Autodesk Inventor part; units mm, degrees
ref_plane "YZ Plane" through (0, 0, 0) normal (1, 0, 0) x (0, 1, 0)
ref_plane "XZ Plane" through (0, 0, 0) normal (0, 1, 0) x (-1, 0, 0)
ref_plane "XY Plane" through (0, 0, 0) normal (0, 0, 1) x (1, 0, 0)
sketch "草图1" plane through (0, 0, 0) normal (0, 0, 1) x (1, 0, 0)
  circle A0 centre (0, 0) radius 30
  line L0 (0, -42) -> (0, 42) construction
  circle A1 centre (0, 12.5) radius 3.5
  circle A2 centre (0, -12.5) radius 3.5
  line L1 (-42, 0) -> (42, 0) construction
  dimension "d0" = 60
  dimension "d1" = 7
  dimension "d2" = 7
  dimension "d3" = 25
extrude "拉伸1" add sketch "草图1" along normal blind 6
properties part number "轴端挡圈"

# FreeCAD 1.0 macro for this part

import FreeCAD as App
import Part
import Sketcher

doc = App.newDocument("Part")
body = doc.addObject("PartDesign::Body", "Body")

# Sketch on XY plane
sketch1 = body.newObject("Sketcher::SketchObject", "Sketch")
sketch1.AttachmentSupport = (doc.getObject("XY_Plane"), [""])
sketch1.MapMode = "FlatFace"
sketch1.addGeometry(Part.Circle(App.Vector(0, 0, 0), App.Vector(0, 0, 1), 30), False)
sketch1.addGeometry(Part.Circle(App.Vector(0, -12.5, 0), App.Vector(0, 0, 1), 3.5), False)
sketch1.addGeometry(Part.Circle(App.Vector(0, 12.5, 0), App.Vector(0, 0, 1), 3.5), False)
sketch1.addConstraint(Sketcher.Constraint("Coincident", 0, 3, -1, 1))
sketch1.addConstraint(Sketcher.Constraint("Equal", 1, 2))
sketch1.addConstraint(Sketcher.Constraint("Symmetric", 1, 3, 2, 3, -1, 1))
sketch1.addConstraint(Sketcher.Constraint("PointOnObject", 1, 3, -2))
sketch1.addConstraint(Sketcher.Constraint("Diameter", 0, 60.0))
sketch1.addConstraint(Sketcher.Constraint("Diameter", 1, 7.0))
sketch1.addConstraint(Sketcher.Constraint("DistanceY", 1, 3, 2, 3, 25.0))
pad1 = body.newObject("PartDesign::Pad", "Pad")
pad1.Profile = sketch1
pad1.Length = 6

doc.recompute()
